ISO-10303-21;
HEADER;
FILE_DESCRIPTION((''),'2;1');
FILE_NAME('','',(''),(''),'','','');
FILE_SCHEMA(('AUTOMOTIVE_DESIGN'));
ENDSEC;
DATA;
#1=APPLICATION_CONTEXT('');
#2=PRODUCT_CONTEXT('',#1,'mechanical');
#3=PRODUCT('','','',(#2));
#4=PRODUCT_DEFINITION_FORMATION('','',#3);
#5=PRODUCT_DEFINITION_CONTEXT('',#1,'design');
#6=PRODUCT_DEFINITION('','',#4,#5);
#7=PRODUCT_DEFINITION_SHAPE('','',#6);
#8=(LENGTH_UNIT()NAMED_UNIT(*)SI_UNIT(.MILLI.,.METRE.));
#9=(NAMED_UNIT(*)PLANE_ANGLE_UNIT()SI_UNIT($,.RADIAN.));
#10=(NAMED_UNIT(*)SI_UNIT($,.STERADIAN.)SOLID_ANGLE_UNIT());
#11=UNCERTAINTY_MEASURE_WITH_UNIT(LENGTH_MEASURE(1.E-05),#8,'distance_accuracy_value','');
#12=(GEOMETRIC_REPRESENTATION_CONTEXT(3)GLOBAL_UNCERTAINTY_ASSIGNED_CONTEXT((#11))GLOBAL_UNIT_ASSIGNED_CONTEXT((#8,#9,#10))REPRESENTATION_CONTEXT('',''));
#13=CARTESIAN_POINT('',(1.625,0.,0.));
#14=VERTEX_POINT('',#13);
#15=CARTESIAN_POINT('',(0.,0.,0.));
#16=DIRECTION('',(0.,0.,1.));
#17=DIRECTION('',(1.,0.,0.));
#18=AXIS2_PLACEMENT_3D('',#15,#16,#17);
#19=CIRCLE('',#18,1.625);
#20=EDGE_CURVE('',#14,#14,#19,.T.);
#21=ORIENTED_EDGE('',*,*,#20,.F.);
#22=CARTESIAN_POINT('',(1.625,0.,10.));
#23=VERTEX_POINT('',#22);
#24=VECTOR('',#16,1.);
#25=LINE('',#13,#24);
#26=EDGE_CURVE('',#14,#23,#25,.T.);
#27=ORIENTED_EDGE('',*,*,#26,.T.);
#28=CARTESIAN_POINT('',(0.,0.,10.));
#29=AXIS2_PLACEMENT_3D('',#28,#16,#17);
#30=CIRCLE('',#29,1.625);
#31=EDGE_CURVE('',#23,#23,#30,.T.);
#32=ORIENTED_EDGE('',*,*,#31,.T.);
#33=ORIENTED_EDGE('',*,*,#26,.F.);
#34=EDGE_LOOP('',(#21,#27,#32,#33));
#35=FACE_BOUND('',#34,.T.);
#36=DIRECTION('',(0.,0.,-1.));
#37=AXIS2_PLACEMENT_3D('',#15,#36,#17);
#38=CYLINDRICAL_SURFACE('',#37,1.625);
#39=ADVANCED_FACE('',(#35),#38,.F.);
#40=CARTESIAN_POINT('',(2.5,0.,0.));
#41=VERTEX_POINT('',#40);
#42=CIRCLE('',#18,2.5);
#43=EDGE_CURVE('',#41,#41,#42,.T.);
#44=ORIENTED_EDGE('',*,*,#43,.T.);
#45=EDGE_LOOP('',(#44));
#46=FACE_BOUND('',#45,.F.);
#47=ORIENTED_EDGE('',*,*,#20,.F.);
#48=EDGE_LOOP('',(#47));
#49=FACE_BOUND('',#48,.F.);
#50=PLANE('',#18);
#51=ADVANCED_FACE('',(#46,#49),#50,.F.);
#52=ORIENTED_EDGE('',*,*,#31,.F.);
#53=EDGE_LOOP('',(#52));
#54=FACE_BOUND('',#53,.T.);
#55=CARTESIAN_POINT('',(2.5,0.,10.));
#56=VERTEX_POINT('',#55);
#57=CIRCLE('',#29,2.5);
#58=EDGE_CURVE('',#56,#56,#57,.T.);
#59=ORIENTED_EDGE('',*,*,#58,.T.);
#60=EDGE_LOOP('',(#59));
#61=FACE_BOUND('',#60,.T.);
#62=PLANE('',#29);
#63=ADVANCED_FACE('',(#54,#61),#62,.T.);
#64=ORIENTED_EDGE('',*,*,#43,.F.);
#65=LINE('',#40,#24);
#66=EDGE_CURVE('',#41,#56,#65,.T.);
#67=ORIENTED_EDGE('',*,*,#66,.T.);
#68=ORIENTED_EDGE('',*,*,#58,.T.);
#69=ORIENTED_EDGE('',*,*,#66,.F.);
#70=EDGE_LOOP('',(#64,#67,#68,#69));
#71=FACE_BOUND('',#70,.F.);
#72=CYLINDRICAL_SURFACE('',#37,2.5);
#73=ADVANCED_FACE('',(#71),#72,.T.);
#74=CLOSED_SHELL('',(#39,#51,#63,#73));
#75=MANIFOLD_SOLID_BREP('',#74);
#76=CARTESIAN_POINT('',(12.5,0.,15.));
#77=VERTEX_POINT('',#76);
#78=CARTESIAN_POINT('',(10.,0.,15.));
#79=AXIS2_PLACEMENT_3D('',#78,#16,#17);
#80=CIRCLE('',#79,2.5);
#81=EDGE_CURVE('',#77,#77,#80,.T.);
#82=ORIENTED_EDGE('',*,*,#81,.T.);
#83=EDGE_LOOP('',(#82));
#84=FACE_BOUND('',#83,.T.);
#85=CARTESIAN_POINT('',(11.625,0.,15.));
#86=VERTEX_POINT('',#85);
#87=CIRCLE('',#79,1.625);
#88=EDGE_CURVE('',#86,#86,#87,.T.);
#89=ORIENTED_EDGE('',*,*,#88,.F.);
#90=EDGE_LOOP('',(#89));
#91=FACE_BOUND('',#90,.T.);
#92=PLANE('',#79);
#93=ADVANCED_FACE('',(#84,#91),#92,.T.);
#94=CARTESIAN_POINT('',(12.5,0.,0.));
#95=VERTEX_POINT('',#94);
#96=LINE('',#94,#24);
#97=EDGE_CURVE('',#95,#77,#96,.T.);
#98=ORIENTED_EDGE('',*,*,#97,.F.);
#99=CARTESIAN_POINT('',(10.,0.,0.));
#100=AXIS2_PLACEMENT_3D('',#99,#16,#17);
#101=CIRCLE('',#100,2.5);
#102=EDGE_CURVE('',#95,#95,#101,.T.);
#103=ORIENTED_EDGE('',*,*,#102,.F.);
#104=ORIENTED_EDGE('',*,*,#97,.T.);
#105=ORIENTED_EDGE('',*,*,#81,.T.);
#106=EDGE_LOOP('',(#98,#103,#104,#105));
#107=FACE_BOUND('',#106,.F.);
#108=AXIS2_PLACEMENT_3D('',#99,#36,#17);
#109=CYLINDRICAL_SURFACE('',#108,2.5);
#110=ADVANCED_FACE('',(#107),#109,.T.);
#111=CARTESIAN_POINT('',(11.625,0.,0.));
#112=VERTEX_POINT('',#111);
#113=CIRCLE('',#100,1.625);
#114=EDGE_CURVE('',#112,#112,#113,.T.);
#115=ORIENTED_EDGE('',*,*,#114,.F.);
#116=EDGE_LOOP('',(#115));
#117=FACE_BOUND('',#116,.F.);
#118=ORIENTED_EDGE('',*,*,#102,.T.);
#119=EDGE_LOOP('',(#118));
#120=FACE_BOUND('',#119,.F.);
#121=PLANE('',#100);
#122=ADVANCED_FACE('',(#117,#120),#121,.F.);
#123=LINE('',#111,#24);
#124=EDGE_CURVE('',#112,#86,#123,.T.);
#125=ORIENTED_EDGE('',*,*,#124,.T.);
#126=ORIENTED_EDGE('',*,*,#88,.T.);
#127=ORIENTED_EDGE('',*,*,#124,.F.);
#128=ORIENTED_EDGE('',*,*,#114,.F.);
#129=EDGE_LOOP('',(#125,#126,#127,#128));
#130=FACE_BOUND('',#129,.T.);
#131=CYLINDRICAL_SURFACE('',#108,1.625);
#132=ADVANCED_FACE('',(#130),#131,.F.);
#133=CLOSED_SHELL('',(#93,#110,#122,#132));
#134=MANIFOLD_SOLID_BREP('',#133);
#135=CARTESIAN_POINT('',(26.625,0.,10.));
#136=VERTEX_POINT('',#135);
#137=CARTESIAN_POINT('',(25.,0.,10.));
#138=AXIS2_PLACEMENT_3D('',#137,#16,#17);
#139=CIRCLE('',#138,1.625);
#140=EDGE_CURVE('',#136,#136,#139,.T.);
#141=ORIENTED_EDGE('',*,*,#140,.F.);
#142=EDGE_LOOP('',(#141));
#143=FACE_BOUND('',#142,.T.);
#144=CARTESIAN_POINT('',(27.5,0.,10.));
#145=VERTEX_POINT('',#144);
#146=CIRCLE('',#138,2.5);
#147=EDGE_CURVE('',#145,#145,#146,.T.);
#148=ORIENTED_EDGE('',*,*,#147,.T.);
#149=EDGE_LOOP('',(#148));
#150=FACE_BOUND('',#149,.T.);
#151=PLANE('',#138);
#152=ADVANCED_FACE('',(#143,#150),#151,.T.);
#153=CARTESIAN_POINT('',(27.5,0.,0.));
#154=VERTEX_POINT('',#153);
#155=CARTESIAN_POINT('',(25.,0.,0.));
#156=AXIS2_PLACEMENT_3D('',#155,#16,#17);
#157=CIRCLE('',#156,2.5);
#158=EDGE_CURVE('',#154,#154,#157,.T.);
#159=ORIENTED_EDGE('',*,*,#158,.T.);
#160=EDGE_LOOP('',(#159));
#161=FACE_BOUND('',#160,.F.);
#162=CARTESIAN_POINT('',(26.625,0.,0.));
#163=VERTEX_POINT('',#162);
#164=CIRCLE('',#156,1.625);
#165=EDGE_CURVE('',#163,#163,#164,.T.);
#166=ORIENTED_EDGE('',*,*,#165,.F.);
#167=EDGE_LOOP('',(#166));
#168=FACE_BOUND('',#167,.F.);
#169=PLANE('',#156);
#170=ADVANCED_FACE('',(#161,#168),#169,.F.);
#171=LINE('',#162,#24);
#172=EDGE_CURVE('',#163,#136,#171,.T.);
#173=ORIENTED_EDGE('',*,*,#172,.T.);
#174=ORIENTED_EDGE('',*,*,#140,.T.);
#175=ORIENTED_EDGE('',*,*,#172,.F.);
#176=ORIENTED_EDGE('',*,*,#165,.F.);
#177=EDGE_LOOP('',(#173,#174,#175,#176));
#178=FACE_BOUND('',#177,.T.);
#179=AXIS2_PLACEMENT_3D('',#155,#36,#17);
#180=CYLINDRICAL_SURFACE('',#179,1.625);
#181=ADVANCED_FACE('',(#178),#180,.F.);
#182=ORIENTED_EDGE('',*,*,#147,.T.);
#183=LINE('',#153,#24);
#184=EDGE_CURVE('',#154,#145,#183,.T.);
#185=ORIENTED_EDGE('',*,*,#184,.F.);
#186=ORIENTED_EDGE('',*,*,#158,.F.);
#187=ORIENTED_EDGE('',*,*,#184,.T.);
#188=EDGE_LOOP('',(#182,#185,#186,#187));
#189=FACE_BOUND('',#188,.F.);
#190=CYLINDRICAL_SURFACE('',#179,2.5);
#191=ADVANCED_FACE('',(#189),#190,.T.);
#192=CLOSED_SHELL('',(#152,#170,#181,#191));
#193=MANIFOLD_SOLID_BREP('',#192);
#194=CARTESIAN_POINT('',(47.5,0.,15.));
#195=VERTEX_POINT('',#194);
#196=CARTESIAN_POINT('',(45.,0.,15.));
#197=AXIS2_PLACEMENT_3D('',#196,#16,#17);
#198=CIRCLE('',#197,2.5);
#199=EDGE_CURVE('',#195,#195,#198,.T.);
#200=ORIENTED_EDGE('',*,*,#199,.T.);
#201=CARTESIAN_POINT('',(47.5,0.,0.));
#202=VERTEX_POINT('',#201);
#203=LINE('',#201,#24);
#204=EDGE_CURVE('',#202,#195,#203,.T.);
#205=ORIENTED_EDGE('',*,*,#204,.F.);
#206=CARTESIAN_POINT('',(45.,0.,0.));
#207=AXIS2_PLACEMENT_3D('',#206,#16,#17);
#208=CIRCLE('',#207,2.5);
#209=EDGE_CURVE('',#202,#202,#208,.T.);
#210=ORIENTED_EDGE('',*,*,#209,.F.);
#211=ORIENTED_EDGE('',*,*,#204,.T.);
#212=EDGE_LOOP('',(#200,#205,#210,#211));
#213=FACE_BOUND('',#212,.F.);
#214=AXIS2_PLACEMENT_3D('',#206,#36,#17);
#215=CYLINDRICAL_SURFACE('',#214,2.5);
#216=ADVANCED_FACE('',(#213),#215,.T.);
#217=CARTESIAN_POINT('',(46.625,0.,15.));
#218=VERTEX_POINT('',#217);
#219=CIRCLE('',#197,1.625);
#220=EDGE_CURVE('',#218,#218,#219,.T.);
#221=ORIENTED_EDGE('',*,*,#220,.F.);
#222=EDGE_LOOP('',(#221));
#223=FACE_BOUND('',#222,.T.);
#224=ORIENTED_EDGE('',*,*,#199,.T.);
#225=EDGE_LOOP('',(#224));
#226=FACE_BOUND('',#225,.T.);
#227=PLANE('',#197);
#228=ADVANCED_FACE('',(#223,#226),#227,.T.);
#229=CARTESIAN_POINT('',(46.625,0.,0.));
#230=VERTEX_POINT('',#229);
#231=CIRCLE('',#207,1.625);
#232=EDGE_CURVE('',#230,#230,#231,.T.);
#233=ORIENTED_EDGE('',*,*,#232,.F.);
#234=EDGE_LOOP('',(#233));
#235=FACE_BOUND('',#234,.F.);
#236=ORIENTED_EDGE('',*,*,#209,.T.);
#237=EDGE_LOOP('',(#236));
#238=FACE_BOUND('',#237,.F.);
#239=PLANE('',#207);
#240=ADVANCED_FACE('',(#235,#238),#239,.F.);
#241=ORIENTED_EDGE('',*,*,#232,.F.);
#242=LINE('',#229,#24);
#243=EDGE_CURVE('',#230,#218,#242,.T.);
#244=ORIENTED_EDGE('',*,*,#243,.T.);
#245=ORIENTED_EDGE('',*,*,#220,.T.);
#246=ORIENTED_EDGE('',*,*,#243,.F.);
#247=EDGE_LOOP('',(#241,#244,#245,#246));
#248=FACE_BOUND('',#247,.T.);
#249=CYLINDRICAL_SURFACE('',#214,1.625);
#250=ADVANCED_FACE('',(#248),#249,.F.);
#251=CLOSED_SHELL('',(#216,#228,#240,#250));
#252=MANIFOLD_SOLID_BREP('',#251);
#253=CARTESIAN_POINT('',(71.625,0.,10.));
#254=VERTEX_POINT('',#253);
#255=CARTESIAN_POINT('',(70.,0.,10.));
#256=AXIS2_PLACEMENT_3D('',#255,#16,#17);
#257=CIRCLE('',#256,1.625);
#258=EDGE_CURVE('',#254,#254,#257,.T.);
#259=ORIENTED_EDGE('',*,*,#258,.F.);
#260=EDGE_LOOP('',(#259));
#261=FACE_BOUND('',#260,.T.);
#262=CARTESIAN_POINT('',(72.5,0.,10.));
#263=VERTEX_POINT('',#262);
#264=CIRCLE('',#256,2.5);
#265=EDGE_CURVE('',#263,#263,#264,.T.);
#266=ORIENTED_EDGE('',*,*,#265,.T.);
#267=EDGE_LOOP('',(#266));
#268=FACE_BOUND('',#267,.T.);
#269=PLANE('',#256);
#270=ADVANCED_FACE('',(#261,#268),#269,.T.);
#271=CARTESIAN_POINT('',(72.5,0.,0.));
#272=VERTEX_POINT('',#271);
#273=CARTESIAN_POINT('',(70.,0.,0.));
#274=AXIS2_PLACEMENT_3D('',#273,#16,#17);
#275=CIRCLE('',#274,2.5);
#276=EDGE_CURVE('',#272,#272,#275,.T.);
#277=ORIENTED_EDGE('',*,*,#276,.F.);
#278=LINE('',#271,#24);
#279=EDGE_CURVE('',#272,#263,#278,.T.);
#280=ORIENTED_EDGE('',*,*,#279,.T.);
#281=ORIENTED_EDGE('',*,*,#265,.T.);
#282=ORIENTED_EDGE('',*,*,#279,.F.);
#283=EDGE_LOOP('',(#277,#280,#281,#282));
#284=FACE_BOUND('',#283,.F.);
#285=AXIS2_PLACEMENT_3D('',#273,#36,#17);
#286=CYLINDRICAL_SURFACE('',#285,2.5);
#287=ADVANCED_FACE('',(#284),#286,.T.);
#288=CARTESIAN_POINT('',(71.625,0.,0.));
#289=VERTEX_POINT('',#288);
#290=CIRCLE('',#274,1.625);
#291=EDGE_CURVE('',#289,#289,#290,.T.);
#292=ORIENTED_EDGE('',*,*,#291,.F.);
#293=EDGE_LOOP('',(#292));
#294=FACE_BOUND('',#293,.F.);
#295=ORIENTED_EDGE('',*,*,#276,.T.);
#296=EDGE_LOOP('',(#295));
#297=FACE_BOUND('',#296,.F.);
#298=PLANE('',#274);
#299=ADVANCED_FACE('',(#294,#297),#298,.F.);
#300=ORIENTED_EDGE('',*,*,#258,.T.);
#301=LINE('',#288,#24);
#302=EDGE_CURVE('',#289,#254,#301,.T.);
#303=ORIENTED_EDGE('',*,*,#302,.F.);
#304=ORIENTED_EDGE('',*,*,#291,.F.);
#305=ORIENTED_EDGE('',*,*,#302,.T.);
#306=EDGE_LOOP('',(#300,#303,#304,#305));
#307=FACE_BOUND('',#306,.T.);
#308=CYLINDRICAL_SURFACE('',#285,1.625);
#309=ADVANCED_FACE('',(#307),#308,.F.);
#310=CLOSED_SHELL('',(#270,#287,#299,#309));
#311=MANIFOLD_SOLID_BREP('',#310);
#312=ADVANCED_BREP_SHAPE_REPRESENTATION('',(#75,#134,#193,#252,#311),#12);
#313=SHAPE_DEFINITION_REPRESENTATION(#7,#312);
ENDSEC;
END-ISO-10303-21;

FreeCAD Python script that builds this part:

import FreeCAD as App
import Part
import Sketcher

V = App.Vector
Q = App.Units.Quantity

doc = App.newDocument("Part")
body = doc.addObject("PartDesign::Body", "Body")
body.AllowCompound = True

# Sketch on XY plane
sketch1 = doc.addObject("Sketcher::SketchObject", "Sketch")
body.addObject(sketch1)
sketch1.AttachmentSupport = (doc.XY_Plane, [""])
sketch1.MapMode = "FlatFace"
sketch1.addGeometry(Part.Circle(V(0, 0, 0), V(0, 0, 1), 2.5), False)
sketch1.addGeometry(Part.Circle(V(0, 0, 0), V(0, 0, 1), 1.6), False)
sketch1.addGeometry(Part.Circle(V(25, 0, 0), V(0, 0, 1), 2.5), False)
sketch1.addGeometry(Part.Circle(V(25, 0, 0), V(0, 0, 1), 1.6), False)
sketch1.addGeometry(Part.Circle(V(70, 0, 0), V(0, 0, 1), 2.5), False)
sketch1.addGeometry(Part.Circle(V(70, 0, 0), V(0, 0, 1), 1.6), False)
sketch1.addConstraint(Sketcher.Constraint("Coincident", 0, 3, -1, 1))
sketch1.addConstraint(Sketcher.Constraint("Coincident", 1, 3, -1, 1))
sketch1.addConstraint(Sketcher.Constraint("Coincident", 3, 3, 2, 3))
sketch1.addConstraint(Sketcher.Constraint("Coincident", 5, 3, 4, 3))
sketch1.addConstraint(Sketcher.Constraint("Equal", 0, 2))
sketch1.addConstraint(Sketcher.Constraint("Equal", 1, 3))
sketch1.addConstraint(Sketcher.Constraint("Equal", 2, 4))
sketch1.addConstraint(Sketcher.Constraint("Equal", 3, 5))
sketch1.addConstraint(Sketcher.Constraint("PointOnObject", 2, 3, -1))
sketch1.addConstraint(Sketcher.Constraint("PointOnObject", 4, 3, -1))
sketch1.addConstraint(Sketcher.Constraint("Diameter", 0, Q("5 mm")))
sketch1.addConstraint(Sketcher.Constraint("Diameter", 1, Q("3.25 mm")))
sketch1.addConstraint(Sketcher.Constraint("DistanceX", -1, 1, 2, 3, Q("25 mm")))
sketch1.addConstraint(Sketcher.Constraint("DistanceX", -1, 1, 4, 3, Q("70 mm")))
pad1 = doc.addObject("PartDesign::Pad", "Pad")
body.addObject(pad1)
pad1.Profile = sketch1
pad1.Length = 10
body2 = doc.addObject("PartDesign::Body", "Body001")
body2.AllowCompound = True

# Sketch on XY plane
sketch2 = doc.addObject("Sketcher::SketchObject", "Sketch001")
body2.addObject(sketch2)
sketch2.AttachmentSupport = (doc.getObject("XY_Plane001"), [""])
sketch2.MapMode = "FlatFace"
sketch2.addGeometry(Part.Circle(V(10, 0, 0), V(0, 0, 1), 2.5), False)
sketch2.addGeometry(Part.Circle(V(10, 0, 0), V(0, 0, 1), 1.6), False)
sketch2.addGeometry(Part.Circle(V(45, 0, 0), V(0, 0, 1), 2.5), False)
sketch2.addGeometry(Part.Circle(V(45, 0, 0), V(0, 0, 1), 1.6), False)
sketch2.addConstraint(Sketcher.Constraint("Coincident", 1, 3, 0, 3))
sketch2.addConstraint(Sketcher.Constraint("Coincident", 3, 3, 2, 3))
sketch2.addConstraint(Sketcher.Constraint("Equal", 0, 2))
sketch2.addConstraint(Sketcher.Constraint("Equal", 1, 3))
sketch2.addConstraint(Sketcher.Constraint("PointOnObject", 0, 3, -1))
sketch2.addConstraint(Sketcher.Constraint("PointOnObject", 2, 3, -1))
sketch2.addConstraint(Sketcher.Constraint("Diameter", 0, Q("5 mm")))
sketch2.addConstraint(Sketcher.Constraint("Diameter", 1, Q("3.25 mm")))
sketch2.addConstraint(Sketcher.Constraint("DistanceX", -1, 1, 0, 3, Q("10 mm")))
sketch2.addConstraint(Sketcher.Constraint("DistanceX", -1, 1, 2, 3, Q("45 mm")))
pad2 = doc.addObject("PartDesign::Pad", "Pad001")
body2.addObject(pad2)
pad2.Profile = sketch2
pad2.Length = 15

doc.recompute()
